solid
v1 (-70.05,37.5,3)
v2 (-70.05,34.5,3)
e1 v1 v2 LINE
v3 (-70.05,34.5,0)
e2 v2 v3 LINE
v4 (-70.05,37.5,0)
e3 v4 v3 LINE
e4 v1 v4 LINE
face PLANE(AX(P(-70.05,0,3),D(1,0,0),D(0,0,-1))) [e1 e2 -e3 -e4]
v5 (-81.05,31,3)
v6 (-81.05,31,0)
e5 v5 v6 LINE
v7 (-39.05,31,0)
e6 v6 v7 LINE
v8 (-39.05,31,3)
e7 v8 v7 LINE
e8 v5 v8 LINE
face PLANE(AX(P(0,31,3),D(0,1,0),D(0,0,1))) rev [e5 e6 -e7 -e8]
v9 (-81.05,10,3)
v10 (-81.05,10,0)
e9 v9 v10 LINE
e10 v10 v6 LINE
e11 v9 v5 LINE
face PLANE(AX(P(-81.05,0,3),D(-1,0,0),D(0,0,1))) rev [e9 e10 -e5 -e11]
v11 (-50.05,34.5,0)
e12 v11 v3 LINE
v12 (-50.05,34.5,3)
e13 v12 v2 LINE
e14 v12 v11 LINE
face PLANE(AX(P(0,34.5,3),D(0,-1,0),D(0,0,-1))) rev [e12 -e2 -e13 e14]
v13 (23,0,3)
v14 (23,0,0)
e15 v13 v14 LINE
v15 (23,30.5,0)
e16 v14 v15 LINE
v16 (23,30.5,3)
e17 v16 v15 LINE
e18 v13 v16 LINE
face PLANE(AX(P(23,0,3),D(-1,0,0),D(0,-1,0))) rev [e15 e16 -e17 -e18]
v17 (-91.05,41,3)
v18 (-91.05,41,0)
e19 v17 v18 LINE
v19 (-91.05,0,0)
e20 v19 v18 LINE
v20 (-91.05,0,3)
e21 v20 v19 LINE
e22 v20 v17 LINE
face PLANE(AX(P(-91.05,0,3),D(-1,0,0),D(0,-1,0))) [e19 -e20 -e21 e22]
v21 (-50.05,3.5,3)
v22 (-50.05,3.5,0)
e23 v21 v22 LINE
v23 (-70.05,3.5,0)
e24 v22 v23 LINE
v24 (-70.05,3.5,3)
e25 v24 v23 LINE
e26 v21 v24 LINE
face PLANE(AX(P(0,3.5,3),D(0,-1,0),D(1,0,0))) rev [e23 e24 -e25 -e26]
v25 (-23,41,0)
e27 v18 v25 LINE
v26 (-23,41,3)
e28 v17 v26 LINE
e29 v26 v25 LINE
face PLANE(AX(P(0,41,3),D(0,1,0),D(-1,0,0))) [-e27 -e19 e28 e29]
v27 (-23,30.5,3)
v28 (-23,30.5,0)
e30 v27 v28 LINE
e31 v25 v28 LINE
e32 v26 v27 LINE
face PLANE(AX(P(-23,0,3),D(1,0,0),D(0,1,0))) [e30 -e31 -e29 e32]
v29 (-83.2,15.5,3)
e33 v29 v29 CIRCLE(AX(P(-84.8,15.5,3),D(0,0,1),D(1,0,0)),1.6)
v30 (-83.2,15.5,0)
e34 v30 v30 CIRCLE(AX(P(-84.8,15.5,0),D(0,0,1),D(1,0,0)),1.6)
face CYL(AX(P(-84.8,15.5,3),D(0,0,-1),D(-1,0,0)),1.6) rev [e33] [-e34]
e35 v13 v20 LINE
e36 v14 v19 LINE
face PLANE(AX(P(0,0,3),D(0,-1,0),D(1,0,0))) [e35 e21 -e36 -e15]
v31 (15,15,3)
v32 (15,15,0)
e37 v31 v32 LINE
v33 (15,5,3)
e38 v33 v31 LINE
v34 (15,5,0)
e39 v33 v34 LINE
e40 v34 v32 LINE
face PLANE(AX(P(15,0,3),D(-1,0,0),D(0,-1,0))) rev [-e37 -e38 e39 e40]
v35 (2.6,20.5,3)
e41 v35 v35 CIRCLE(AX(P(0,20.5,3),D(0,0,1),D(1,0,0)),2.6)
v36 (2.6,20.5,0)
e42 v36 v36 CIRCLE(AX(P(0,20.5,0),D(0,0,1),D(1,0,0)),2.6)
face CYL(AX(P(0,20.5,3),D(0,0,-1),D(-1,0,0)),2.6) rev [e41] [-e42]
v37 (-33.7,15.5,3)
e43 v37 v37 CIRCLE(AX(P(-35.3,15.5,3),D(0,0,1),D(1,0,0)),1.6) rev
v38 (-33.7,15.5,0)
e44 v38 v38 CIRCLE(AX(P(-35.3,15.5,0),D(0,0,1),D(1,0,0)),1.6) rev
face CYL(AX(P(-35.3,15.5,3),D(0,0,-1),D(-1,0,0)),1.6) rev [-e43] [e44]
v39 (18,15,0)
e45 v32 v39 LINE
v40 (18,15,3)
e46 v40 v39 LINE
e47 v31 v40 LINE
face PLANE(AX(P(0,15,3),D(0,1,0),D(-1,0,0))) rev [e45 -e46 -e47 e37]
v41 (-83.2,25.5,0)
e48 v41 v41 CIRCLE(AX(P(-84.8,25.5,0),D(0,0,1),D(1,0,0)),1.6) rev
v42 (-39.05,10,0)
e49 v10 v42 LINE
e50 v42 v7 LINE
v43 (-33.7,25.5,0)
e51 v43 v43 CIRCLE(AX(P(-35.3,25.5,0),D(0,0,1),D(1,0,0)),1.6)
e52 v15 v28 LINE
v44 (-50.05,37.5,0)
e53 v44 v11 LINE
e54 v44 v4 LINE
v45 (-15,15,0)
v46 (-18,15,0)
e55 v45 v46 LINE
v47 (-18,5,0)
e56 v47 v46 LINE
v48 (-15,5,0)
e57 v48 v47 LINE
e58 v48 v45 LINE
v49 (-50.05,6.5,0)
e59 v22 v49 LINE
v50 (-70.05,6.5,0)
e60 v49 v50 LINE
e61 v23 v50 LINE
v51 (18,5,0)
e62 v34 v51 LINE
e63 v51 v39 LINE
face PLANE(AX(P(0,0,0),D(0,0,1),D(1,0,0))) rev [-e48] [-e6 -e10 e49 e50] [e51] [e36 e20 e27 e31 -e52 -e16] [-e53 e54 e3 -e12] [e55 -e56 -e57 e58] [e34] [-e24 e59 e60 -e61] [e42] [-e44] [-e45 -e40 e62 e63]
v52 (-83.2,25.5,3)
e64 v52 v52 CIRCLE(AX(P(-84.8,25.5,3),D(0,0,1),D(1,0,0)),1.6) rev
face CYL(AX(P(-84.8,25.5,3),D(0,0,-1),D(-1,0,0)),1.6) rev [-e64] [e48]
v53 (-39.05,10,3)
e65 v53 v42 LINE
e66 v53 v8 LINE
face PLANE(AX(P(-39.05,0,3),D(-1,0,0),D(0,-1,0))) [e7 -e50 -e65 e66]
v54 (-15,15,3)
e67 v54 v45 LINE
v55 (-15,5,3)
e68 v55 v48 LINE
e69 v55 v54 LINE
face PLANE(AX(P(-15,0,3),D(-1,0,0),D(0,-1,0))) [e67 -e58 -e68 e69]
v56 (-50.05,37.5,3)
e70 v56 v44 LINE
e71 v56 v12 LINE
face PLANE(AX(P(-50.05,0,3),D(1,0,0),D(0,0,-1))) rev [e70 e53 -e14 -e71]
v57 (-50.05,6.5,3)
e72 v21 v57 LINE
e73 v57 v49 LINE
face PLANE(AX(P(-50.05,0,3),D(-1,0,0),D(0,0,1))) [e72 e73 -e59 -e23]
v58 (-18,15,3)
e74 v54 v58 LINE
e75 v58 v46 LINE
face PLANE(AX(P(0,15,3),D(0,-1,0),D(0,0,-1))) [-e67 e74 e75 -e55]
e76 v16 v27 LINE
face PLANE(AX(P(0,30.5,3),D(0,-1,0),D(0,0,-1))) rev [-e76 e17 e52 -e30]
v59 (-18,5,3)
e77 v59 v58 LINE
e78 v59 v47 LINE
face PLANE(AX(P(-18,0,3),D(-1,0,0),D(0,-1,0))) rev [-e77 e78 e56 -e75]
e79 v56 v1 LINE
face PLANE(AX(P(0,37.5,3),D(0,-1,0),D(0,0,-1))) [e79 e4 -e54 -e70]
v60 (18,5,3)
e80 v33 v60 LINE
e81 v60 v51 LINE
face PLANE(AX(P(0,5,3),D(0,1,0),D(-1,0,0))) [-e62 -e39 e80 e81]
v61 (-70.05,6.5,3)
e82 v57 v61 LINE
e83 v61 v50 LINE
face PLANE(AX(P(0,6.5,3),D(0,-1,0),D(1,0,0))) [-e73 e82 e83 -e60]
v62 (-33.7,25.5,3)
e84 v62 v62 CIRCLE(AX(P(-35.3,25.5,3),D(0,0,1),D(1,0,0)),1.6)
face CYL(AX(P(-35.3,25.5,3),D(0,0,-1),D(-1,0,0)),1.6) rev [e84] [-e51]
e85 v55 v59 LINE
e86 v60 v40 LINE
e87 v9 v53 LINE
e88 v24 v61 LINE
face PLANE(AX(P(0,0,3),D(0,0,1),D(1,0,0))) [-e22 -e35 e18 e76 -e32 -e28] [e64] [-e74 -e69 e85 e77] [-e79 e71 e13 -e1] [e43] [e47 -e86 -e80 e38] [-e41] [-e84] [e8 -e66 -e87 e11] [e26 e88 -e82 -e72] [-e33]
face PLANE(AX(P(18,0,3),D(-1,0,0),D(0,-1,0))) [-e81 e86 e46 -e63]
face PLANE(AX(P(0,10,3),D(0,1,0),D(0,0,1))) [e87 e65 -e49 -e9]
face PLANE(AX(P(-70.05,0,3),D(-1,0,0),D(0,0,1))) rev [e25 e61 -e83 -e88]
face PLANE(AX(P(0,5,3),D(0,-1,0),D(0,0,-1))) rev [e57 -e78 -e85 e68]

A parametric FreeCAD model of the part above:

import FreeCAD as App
import Part
import Sketcher
from FreeCAD import Vector


def add_polygon(sketch, points):
    """Adds a closed chain of lines whose ends are joined by coincident constraints."""
    first, n = sketch.GeometryCount, len(points)
    for a, b in zip(points, points[1:] + points[:1]):
        sketch.addGeometry(Part.LineSegment(App.Vector(*a, 0), App.Vector(*b, 0)), False)
    for i in range(n):
        sketch.addConstraint(Sketcher.Constraint("Coincident", first + i, 2, first + (i + 1) % n, 1))

doc = App.newDocument("Part")
body = doc.addObject("PartDesign::Body", "Body")

# Sketch on XY plane
sketch1 = body.newObject("Sketcher::SketchObject", "Sketch")
sketch1.AttachmentSupport = (doc.getObject("XY_Plane"), [""])
sketch1.MapMode = "FlatFace"
add_polygon(sketch1, [(23, 0), (23, 30.5), (-23, 30.5), (-23, 41), (-91, 41), (-91, 0)])  # lines 0-5
add_polygon(sketch1, [(-50, 3.5), (-70, 3.5), (-70, 6.5), (-50, 6.5)])  # lines 6-9
sketch1.addGeometry(Part.Circle(Vector(-84.8, 15.5, 0), Vector(0, 0, 1), 1.6), False)  # 10
sketch1.addGeometry(Part.Circle(Vector(-35.3, 15.5, 0), Vector(0, 0, 1), 1.6), False)  # 11
add_polygon(sketch1, [(-15, 5), (-18, 5), (-18, 15), (-15, 15)])  # lines 12-15
add_polygon(sketch1, [(18, 5), (15, 5), (15, 15), (18, 15)])  # lines 16-19
sketch1.addGeometry(Part.Circle(Vector(-84.8, 25.5, 0), Vector(0, 0, 1), 1.6), False)  # 20
add_polygon(sketch1, [(-39, 10), (-81, 10), (-81, 31), (-39, 31)])  # lines 21-24
sketch1.addGeometry(Part.Circle(Vector(-35.3, 25.5, 0), Vector(0, 0, 1), 1.6), False)  # 25
add_polygon(sketch1, [(-50, 34.5), (-70, 34.5), (-70, 37.5), (-50, 37.5)])  # lines 26-29
sketch1.addGeometry(Part.Circle(Vector(0, 20.5, 0), Vector(0, 0, 1), 2.6), False)  # 30
sketch1.addConstraint(Sketcher.Constraint("Vertical", 0))
sketch1.addConstraint(Sketcher.Constraint("Horizontal", 1))
sketch1.addConstraint(Sketcher.Constraint("Vertical", 2))
sketch1.addConstraint(Sketcher.Constraint("Horizontal", 3))
sketch1.addConstraint(Sketcher.Constraint("Vertical", 4))
sketch1.addConstraint(Sketcher.Constraint("Horizontal", 5))
sketch1.addConstraint(Sketcher.Constraint("Horizontal", 6))
sketch1.addConstraint(Sketcher.Constraint("Vertical", 7))
sketch1.addConstraint(Sketcher.Constraint("Horizontal", 8))
sketch1.addConstraint(Sketcher.Constraint("Vertical", 9))
sketch1.addConstraint(Sketcher.Constraint("Horizontal", 12))
sketch1.addConstraint(Sketcher.Constraint("Vertical", 13))
sketch1.addConstraint(Sketcher.Constraint("Horizontal", 14))
sketch1.addConstraint(Sketcher.Constraint("Vertical", 15))
sketch1.addConstraint(Sketcher.Constraint("Horizontal", 16))
sketch1.addConstraint(Sketcher.Constraint("Vertical", 17))
sketch1.addConstraint(Sketcher.Constraint("Horizontal", 18))
sketch1.addConstraint(Sketcher.Constraint("Vertical", 19))
sketch1.addConstraint(Sketcher.Constraint("Horizontal", 21))
sketch1.addConstraint(Sketcher.Constraint("Vertical", 22))
sketch1.addConstraint(Sketcher.Constraint("Horizontal", 23))
sketch1.addConstraint(Sketcher.Constraint("Vertical", 24))
sketch1.addConstraint(Sketcher.Constraint("Horizontal", 26))
sketch1.addConstraint(Sketcher.Constraint("Vertical", 27))
sketch1.addConstraint(Sketcher.Constraint("Horizontal", 28))
sketch1.addConstraint(Sketcher.Constraint("Vertical", 29))
sketch1.addConstraint(Sketcher.Constraint("Equal", 10, 11))
sketch1.addConstraint(Sketcher.Constraint("Equal", 11, 20))
sketch1.addConstraint(Sketcher.Constraint("Equal", 20, 25))
sketch1.addConstraint(Sketcher.Constraint("Symmetric", 15, 2, 16, 2, -2))
sketch1.addConstraint(Sketcher.Constraint("Symmetric", 13, 2, 18, 2, -2))
sketch1.addConstraint(Sketcher.Constraint("PointOnObject", 30, 3, -2))
sketch1.addConstraint(Sketcher.Constraint("PointOnObject", 4, 2, -1))
sketch1.addConstraint(Sketcher.Constraint("Horizontal", 10, 3, 11, 3))
sketch1.addConstraint(Sketcher.Constraint("Horizontal", 20, 3, 25, 3))
sketch1.addConstraint(Sketcher.Constraint("Vertical", 10, 3, 20, 3))
sketch1.addConstraint(Sketcher.Constraint("Vertical", 11, 3, 25, 3))
sketch1.addConstraint(Sketcher.Constraint("Vertical", 7, 2, 26, 2))
sketch1.addConstraint(Sketcher.Constraint("Vertical", 9, 2, 28, 2))
sketch1.addConstraint(Sketcher.Constraint("Equal", 18, 7))
sketch1.addConstraint(Sketcher.Constraint("Equal", 9, 27))
sketch1.addConstraint(Sketcher.Constraint("Diameter", 10, 3.2))
sketch1.addConstraint(Sketcher.Constraint("Diameter", 30, 5.2))
sketch1.addConstraint(Sketcher.Constraint("DistanceX", 1, 2, 1, 1, 46.0))
sketch1.addConstraint(Sketcher.Constraint("DistanceX", 6, 2, 6, 1, 20.0))
sketch1.addConstraint(Sketcher.Constraint("DistanceX", 12, 2, 12, 1, 3.0))
sketch1.addConstraint(Sketcher.Constraint("DistanceX", 21, 2, 21, 1, 42.0))
sketch1.addConstraint(Sketcher.Constraint("DistanceY", 4, 2, 4, 1, 41.0))
sketch1.addConstraint(Sketcher.Constraint("DistanceY", 13, 1, 13, 2, 10.0))
sketch1.addConstraint(Sketcher.Constraint("DistanceY", 22, 1, 22, 2, 21.0))
sketch1.addConstraint(Sketcher.Constraint("DistanceY", 0, 1, 0, 2, 30.5))
sketch1.addConstraint(Sketcher.Constraint("DistanceX", -1, 1, 0, 2, 23.0))
sketch1.addConstraint(Sketcher.Constraint("DistanceX", 12, 2, -1, 1, 18.0))
sketch1.addConstraint(Sketcher.Constraint("DistanceY", -1, 1, 12, 2, 5.0))
sketch1.addConstraint(Sketcher.Constraint("DistanceY", -1, 1, 21, 2, 10.0))
sketch1.addConstraint(Sketcher.Constraint("DistanceY", 10, 3, 20, 3, 10.0))
sketch1.addConstraint(Sketcher.Constraint("DistanceY", 11, 3, 30, 3, 5.0))
sketch1.addConstraint(Sketcher.Constraint("DistanceY", 30, 3, 0, 2, 10.0))
sketch1.addConstraint(Sketcher.Constraint("DistanceY", 6, 2, 10, 3, 12.0))
sketch1.addConstraint(Sketcher.Constraint("DistanceX", 4, 2, 6, 2, 21.0))
sketch1.addConstraint(Sketcher.Constraint("DistanceX", 21, 2, 7, 2, 11.0))
sketch1.addConstraint(Sketcher.Constraint("DistanceY", 20, 3, 26, 2, 9.0))
sketch1.addConstraint(Sketcher.Constraint("DistanceX", 3, 2, 3, 1, 68.05))
sketch1.addConstraint(Sketcher.Constraint("DistanceX", 10, 3, -1, 1, 84.8))
sketch1.addConstraint(Sketcher.Constraint("DistanceX", 11, 3, -1, 1, 35.3))
pad1 = body.newObject("PartDesign::Pad", "Pad")
pad1.Profile = sketch1
pad1.Length = 3

doc.recompute()
